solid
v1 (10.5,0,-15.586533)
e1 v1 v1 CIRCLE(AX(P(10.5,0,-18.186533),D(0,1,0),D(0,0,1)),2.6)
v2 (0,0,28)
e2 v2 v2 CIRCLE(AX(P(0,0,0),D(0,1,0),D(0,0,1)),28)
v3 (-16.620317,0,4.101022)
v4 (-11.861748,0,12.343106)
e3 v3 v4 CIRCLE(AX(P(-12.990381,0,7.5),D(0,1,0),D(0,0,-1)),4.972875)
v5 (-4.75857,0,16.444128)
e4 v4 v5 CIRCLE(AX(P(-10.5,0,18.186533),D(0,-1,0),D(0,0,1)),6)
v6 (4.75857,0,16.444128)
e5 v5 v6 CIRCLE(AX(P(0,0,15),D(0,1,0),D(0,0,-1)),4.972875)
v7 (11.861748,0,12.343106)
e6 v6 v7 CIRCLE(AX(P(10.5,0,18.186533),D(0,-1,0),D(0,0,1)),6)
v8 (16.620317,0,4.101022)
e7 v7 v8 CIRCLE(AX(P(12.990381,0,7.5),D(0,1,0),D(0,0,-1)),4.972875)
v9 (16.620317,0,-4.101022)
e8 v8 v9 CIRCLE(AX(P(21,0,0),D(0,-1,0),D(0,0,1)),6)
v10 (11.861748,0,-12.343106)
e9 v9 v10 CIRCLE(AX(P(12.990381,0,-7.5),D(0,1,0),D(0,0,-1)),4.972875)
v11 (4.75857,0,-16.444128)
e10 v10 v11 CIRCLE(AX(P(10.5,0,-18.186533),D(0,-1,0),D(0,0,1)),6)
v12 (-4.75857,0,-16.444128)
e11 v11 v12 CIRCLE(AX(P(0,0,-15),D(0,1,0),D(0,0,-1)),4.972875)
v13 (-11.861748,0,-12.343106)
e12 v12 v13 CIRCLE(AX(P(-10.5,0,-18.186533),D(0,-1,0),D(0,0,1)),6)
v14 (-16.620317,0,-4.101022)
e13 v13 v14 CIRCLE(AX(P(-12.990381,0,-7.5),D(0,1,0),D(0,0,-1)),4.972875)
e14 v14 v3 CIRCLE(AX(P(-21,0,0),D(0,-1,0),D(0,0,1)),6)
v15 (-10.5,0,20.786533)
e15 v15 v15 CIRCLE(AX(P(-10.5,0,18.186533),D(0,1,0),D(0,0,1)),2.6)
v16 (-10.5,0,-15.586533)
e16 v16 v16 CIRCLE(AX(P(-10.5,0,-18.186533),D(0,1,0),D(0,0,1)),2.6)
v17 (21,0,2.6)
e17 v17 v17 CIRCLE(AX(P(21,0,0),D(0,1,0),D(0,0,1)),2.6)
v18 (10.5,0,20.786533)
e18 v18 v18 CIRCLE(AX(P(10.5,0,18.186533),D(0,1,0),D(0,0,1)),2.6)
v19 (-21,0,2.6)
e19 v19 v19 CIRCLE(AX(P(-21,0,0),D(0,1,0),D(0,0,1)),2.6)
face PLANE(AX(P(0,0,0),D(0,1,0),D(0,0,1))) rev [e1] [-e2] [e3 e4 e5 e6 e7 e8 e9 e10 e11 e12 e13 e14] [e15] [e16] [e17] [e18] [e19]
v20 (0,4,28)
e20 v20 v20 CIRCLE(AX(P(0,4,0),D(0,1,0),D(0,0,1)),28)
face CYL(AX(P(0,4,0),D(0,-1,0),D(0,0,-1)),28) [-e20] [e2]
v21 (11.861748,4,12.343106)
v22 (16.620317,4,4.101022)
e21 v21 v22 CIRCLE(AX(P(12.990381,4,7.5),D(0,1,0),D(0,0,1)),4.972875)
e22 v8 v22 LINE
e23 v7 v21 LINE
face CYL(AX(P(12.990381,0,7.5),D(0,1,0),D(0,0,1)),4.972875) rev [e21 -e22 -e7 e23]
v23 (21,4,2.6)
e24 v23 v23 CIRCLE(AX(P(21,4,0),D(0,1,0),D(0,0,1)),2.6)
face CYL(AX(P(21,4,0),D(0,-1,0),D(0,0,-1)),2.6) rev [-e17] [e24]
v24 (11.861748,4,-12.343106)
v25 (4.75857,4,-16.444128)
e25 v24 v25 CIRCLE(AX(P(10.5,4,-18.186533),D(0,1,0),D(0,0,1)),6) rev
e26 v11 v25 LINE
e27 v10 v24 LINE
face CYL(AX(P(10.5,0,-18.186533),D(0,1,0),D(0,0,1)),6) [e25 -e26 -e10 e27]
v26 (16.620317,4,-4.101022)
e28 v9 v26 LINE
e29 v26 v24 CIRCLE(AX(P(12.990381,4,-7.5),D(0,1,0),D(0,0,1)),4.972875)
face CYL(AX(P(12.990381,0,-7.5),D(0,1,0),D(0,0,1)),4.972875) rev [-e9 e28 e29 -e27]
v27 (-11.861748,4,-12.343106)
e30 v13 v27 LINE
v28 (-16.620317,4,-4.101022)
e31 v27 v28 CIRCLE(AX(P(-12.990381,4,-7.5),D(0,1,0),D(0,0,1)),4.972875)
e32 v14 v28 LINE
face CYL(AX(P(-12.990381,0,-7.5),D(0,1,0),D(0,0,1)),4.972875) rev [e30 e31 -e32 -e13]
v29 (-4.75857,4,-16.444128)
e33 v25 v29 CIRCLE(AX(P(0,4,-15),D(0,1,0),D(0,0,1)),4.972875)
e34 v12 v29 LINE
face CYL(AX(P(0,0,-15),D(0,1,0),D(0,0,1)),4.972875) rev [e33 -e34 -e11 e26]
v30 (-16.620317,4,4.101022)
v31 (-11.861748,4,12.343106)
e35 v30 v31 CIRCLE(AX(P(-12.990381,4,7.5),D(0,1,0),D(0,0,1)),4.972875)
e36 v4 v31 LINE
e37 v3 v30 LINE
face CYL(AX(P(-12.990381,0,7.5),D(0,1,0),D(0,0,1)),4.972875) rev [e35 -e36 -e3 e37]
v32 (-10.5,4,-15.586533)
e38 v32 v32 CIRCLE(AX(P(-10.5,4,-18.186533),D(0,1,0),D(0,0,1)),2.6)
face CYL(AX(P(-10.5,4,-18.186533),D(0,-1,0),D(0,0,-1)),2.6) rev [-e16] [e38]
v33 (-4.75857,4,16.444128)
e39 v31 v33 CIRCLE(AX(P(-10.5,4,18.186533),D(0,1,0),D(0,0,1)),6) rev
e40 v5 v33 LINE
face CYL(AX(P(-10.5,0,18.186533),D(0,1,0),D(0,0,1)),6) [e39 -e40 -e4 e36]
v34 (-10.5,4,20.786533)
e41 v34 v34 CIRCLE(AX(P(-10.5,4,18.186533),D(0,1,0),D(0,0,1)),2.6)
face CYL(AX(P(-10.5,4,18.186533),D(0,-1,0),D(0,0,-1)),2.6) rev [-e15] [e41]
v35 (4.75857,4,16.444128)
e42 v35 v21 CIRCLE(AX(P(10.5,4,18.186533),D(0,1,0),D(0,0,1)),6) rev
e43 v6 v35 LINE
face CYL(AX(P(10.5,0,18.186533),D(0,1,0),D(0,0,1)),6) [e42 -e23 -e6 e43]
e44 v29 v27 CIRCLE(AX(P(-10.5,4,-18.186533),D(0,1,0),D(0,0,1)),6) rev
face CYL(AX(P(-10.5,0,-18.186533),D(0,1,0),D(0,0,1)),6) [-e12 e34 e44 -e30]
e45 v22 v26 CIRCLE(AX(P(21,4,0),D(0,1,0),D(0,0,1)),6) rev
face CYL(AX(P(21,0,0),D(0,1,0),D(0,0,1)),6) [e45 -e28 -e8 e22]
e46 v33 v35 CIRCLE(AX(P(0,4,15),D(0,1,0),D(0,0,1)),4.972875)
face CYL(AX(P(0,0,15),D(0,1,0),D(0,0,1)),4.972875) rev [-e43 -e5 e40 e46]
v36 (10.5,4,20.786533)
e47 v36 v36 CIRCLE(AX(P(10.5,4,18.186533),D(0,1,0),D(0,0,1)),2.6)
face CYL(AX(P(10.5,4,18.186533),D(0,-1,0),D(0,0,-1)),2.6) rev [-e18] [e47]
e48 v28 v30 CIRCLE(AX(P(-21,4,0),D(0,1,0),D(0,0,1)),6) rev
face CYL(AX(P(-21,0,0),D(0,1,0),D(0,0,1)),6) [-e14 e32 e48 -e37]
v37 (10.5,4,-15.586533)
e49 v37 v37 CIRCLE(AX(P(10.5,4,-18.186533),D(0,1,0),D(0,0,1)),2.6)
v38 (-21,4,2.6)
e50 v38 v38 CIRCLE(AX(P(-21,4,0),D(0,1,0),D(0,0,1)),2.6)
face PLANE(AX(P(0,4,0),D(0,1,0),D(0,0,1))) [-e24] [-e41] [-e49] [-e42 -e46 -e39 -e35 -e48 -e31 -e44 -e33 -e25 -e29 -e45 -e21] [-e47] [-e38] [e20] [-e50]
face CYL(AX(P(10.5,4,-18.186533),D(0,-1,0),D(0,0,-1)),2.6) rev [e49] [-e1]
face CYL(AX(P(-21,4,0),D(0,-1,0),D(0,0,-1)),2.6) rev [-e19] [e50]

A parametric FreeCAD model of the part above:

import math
import FreeCAD as App
import Part
import Sketcher

doc = App.newDocument("Part")
body = doc.addObject("PartDesign::Body", "Body")

sketch1 = body.newObject("Sketcher::SketchObject", "Sketch")
sketch1.AttachmentSupport = (doc.getObject("XZ_Plane"), [""])
sketch1.MapMode = "FlatFace"
sketch1.addGeometry(Part.Circle(App.Vector(0, 0, 0), App.Vector(0, 0, 1), 28), False)
sketch1.addGeometry(Part.Circle(App.Vector(-10.5, 18.2, 0), App.Vector(0, 0, 1), 2.6), False)
sketch1.addGeometry(Part.Circle(App.Vector(10.5, 18.2, 0), App.Vector(0, 0, 1), 2.6), False)
sketch1.addGeometry(Part.Circle(App.Vector(-21, 0, 0), App.Vector(0, 0, 1), 2.6), False)
sketch1.addGeometry(Part.Circle(App.Vector(-10.5, -18.2, 0), App.Vector(0, 0, 1), 2.6), False)
sketch1.addGeometry(Part.Circle(App.Vector(21, 0, 0), App.Vector(0, 0, 1), 2.6), False)
sketch1.addGeometry(Part.Circle(App.Vector(10.5, -18.2, 0), App.Vector(0, 0, 1), 2.6), False)
sketch1.addConstraint(Sketcher.Constraint("Coincident", 0, 3, -1, 1))
sketch1.addConstraint(Sketcher.Constraint("Equal", 1, 2))
sketch1.addConstraint(Sketcher.Constraint("Equal", 2, 3))
sketch1.addConstraint(Sketcher.Constraint("Equal", 3, 4))
sketch1.addConstraint(Sketcher.Constraint("Equal", 4, 5))
sketch1.addConstraint(Sketcher.Constraint("Equal", 5, 6))
sketch1.addConstraint(Sketcher.Constraint("Symmetric", 2, 3, 4, 3, -1, 1))
sketch1.addConstraint(Sketcher.Constraint("Symmetric", 3, 3, 5, 3, -1, 1))
sketch1.addConstraint(Sketcher.Constraint("Symmetric", 1, 3, 6, 3, -1, 1))
sketch1.addConstraint(Sketcher.Constraint("Symmetric", 1, 3, 2, 3, -2))
sketch1.addConstraint(Sketcher.Constraint("PointOnObject", 3, 3, -1))
sketch1.addConstraint(Sketcher.Constraint("Diameter", 0, 56.0))
sketch1.addConstraint(Sketcher.Constraint("Diameter", 1, 5.2))
sketch1.addConstraint(Sketcher.Constraint("DistanceX", 3, 3, -1, 1, 21.0))
sketch1.addConstraint(Sketcher.Constraint("DistanceX", 1, 3, 2, 3, 21.0))
sketch1.addConstraint(Sketcher.Constraint("DistanceY", -1, 1, 1, 3, 18.186533))
pad1 = body.newObject("PartDesign::Pad", "Pad")
pad1.Profile = sketch1
pad1.Length = 4
pad1.Reversed = True

sketch2 = body.newObject("Sketcher::SketchObject", "Sketch001")
sketch2.AttachmentSupport = (doc.getObject("XZ_Plane"), [""])
sketch2.MapMode = "FlatFace"
sketch2.AttachmentOffset = App.Placement(App.Vector(0, 0, -4), App.Rotation())
sketch2.addGeometry(Part.ArcOfCircle(Part.Circle(App.Vector(10.5, -18.2, 0), App.Vector(0, 0, 1), 6), math.radians(77), math.radians(163)), False)
sketch2.addGeometry(Part.ArcOfCircle(Part.Circle(App.Vector(0, -15, 0), App.Vector(0, 0, 1), 5), math.radians(-163), math.radians(-17)), False)
sketch2.addGeometry(Part.ArcOfCircle(Part.Circle(App.Vector(-10.5, -18.2, 0), App.Vector(0, 0, 1), 6), math.radians(17), math.radians(103)), False)
sketch2.addGeometry(Part.ArcOfCircle(Part.Circle(App.Vector(-13, -7.5, 0), App.Vector(0, 0, 1), 5), math.radians(137), math.radians(283)), False)
sketch2.addGeometry(Part.ArcOfCircle(Part.Circle(App.Vector(-21, 0, 0), App.Vector(0, 0, 1), 6), math.radians(-43), math.radians(43)), False)
sketch2.addGeometry(Part.ArcOfCircle(Part.Circle(App.Vector(-13, 7.5, 0), App.Vector(0, 0, 1), 5), math.radians(77), math.radians(223)), False)
sketch2.addGeometry(Part.ArcOfCircle(Part.Circle(App.Vector(-10.5, 18.2, 0), App.Vector(0, 0, 1), 6), math.radians(-103), math.radians(-17)), False)
sketch2.addGeometry(Part.ArcOfCircle(Part.Circle(App.Vector(0, 15, 0), App.Vector(0, 0, 1), 5), math.radians(17), math.radians(163)), False)
sketch2.addGeometry(Part.ArcOfCircle(Part.Circle(App.Vector(10.5, 18.2, 0), App.Vector(0, 0, 1), 6), math.radians(-163), math.radians(-77)), False)
sketch2.addGeometry(Part.ArcOfCircle(Part.Circle(App.Vector(13, 7.5, 0), App.Vector(0, 0, 1), 5), math.radians(-43), math.radians(103)), False)
sketch2.addGeometry(Part.ArcOfCircle(Part.Circle(App.Vector(21, 0, 0), App.Vector(0, 0, 1), 6), math.radians(137), math.radians(223)), False)
sketch2.addGeometry(Part.ArcOfCircle(Part.Circle(App.Vector(13, -7.5, 0), App.Vector(0, 0, 1), 5), math.radians(-103), math.radians(43)), False)
sketch2.addConstraint(Sketcher.Constraint("Tangent", 0, 2, 1, 2))
sketch2.addConstraint(Sketcher.Constraint("Tangent", 1, 1, 2, 1))
sketch2.addConstraint(Sketcher.Constraint("Tangent", 2, 2, 3, 2))
sketch2.addConstraint(Sketcher.Constraint("Tangent", 3, 1, 4, 1))
sketch2.addConstraint(Sketcher.Constraint("Tangent", 4, 2, 5, 2))
sketch2.addConstraint(Sketcher.Constraint("Tangent", 5, 1, 6, 1))
sketch2.addConstraint(Sketcher.Constraint("Tangent", 6, 2, 7, 2))
sketch2.addConstraint(Sketcher.Constraint("Tangent", 7, 1, 8, 1))
sketch2.addConstraint(Sketcher.Constraint("Tangent", 8, 2, 9, 2))
sketch2.addConstraint(Sketcher.Constraint("Tangent", 9, 1, 10, 1))
sketch2.addConstraint(Sketcher.Constraint("Tangent", 10, 2, 11, 2))
sketch2.addConstraint(Sketcher.Constraint("Tangent", 11, 1, 0, 1))
sketch2.addConstraint(Sketcher.Constraint("Equal", 0, 2))
sketch2.addConstraint(Sketcher.Constraint("Equal", 1, 3))
sketch2.addConstraint(Sketcher.Constraint("Equal", 2, 4))
sketch2.addConstraint(Sketcher.Constraint("Equal", 3, 5))
sketch2.addConstraint(Sketcher.Constraint("Equal", 4, 6))
sketch2.addConstraint(Sketcher.Constraint("Equal", 5, 7))
sketch2.addConstraint(Sketcher.Constraint("Equal", 6, 8))
sketch2.addConstraint(Sketcher.Constraint("Equal", 7, 9))
sketch2.addConstraint(Sketcher.Constraint("Equal", 8, 10))
sketch2.addConstraint(Sketcher.Constraint("Equal", 9, 11))
sketch2.addConstraint(Sketcher.Constraint("Symmetric", 0, 3, 6, 3, -1, 1))
sketch2.addConstraint(Sketcher.Constraint("Symmetric", 2, 3, 8, 3, -1, 1))
sketch2.addConstraint(Sketcher.Constraint("Symmetric", 4, 3, 10, 3, -1, 1))
sketch2.addConstraint(Sketcher.Constraint("Symmetric", 0, 3, 2, 3, -2))
sketch2.addConstraint(Sketcher.Constraint("PointOnObject", 4, 3, -1))
sketch2.addConstraint(Sketcher.Constraint("Radius", 0, 6.0))
sketch2.addConstraint(Sketcher.Constraint("DistanceY", 1, 3, -1, 1, 15.0))
sketch2.addConstraint(Sketcher.Constraint("DistanceX", 4, 3, -1, 1, 21.0))
sketch2.addConstraint(Sketcher.Constraint("DistanceX", 2, 3, 0, 3, 21.0))
sketch2.addConstraint(Sketcher.Constraint("DistanceY", 3, 3, 5, 3, 15.0))
pocket1 = body.newObject("PartDesign::Pocket", "Pocket")
pocket1.Profile = sketch2
pocket1.Type = "ThroughAll"
pocket1.Midplane = True

doc.recompute()
